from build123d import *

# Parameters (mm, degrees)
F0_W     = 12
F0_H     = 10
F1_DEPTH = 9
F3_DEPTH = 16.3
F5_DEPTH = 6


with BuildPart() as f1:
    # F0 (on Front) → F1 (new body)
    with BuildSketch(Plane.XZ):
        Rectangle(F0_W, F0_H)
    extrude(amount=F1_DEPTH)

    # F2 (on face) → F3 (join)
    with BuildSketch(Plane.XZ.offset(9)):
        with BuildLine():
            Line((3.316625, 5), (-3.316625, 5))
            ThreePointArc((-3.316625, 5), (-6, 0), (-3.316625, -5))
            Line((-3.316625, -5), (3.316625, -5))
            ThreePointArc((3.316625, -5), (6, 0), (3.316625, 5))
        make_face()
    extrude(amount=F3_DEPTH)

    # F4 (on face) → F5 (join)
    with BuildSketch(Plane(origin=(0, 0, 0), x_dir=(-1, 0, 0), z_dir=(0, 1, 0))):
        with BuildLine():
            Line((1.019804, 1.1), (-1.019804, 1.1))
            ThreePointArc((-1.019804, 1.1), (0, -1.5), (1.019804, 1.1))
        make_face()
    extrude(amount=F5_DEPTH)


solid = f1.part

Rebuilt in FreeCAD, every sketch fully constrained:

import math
import FreeCAD as App
import Part
import Sketcher
from FreeCAD import Vector
Q = App.Units.Quantity

doc = App.newDocument("Part")
body = doc.addObject("PartDesign::Body", "Body")

# Sketch on XZ plane
sketch1 = doc.addObject("Sketcher::SketchObject", "Sketch")
body.addObject(sketch1)
sketch1.AttachmentSupport = (doc.XZ_Plane, [""])
sketch1.MapMode = "FlatFace"
sketch1.addGeometry([
    Part.LineSegment(Vector(-6, 5, 0), Vector(-6, -5, 0)),
    Part.LineSegment(Vector(-6, -5, 0), Vector(6, -5, 0)),
    Part.LineSegment(Vector(6, -5, 0), Vector(6, 5, 0)),
    Part.LineSegment(Vector(6, 5, 0), Vector(-6, 5, 0)),
], False)
sketch1.addConstraint([
    Sketcher.Constraint("Coincident", 0, 2, 1, 1),
    Sketcher.Constraint("Coincident", 1, 2, 2, 1),
    Sketcher.Constraint("Coincident", 2, 2, 3, 1),
    Sketcher.Constraint("Coincident", 3, 2, 0, 1),
    Sketcher.Constraint("Vertical", 0),
    Sketcher.Constraint("Horizontal", 1),
    Sketcher.Constraint("Vertical", 2),
    Sketcher.Constraint("Horizontal", 3),
    Sketcher.Constraint("Symmetric", 0, 2, 2, 2, -1, 1),
    Sketcher.Constraint("DistanceX", 1, 1, 1, 2, Q("12 mm")),
    Sketcher.Constraint("DistanceY", 0, 2, 0, 1, Q("10 mm")),
])
pad1 = doc.addObject("PartDesign::Pad", "Pad")
body.addObject(pad1)
pad1.Profile = sketch1
pad1.Length = 9

# Sketch on XZ plane
sketch2 = doc.addObject("Sketcher::SketchObject", "Sketch001")
body.addObject(sketch2)
sketch2.AttachmentSupport = (doc.XZ_Plane, [""])
sketch2.MapMode = "FlatFace"
sketch2.AttachmentOffset = App.Placement(Vector(0, 0, 9), App.Rotation())
sketch2.addGeometry([
    Part.LineSegment(Vector(3, 5, 0), Vector(-3, 5, 0)),
    Part.ArcOfCircle(Part.Circle(Vector(0, 0, 0), Vector(0, 0, 1), 6), math.radians(124), math.radians(236)),
    Part.LineSegment(Vector(-3, -5, 0), Vector(3, -5, 0)),
    Part.ArcOfCircle(Part.Circle(Vector(0, 0, 0), Vector(0, 0, 1), 6), math.radians(-56), math.radians(56)),
], False)
sketch2.addConstraint([
    Sketcher.Constraint("Coincident", 0, 2, 1, 1),
    Sketcher.Constraint("Coincident", 1, 2, 2, 1),
    Sketcher.Constraint("Coincident", 2, 2, 3, 1),
    Sketcher.Constraint("Coincident", 3, 2, 0, 1),
    Sketcher.Constraint("Horizontal", 0),
    Sketcher.Constraint("Horizontal", 2),
    Sketcher.Constraint("Coincident", 1, 3, -1, 1),
    Sketcher.Constraint("Coincident", 3, 3, -1, 1),
    Sketcher.Constraint("Equal", 1, 3),
    Sketcher.Constraint("Vertical", 0, 2, 1, 2),
    Sketcher.Constraint("Radius", 1, Q("6 mm")),
    Sketcher.Constraint("DistanceY", -1, 1, 0, 2, Q("5 mm")),
])
pad2 = doc.addObject("PartDesign::Pad", "Pad001")
body.addObject(pad2)
pad2.Profile = sketch2
pad2.Length = 16.3

# Sketch on XZ plane
sketch3 = doc.addObject("Sketcher::SketchObject", "Sketch002")
body.addObject(sketch3)
sketch3.AttachmentSupport = (doc.XZ_Plane, [""])
sketch3.MapMode = "FlatFace"
sketch3.addGeometry([
    Part.LineSegment(Vector(-1, 1.1, 0), Vector(1, 1.1, 0)),
    Part.ArcOfCircle(Part.Circle(Vector(0, 0, 0), Vector(0, 0, 1), 1.5), math.radians(133), math.radians(407)),
], False)
sketch3.addConstraint([
    Sketcher.Constraint("Coincident", 0, 1, 1, 1),
    Sketcher.Constraint("Coincident", 1, 2, 0, 2),
    Sketcher.Constraint("Horizontal", 0),
    Sketcher.Constraint("Coincident", 1, 3, -1, 1),
    Sketcher.Constraint("Radius", 1, Q("1.5 mm")),
    Sketcher.Constraint("DistanceY", -1, 1, 0, 1, Q("1.1 mm")),
])
pad3 = doc.addObject("PartDesign::Pad", "Pad002")
body.addObject(pad3)
pad3.Profile = sketch3
pad3.Length = 6
pad3.Reversed = True

doc.recompute()
